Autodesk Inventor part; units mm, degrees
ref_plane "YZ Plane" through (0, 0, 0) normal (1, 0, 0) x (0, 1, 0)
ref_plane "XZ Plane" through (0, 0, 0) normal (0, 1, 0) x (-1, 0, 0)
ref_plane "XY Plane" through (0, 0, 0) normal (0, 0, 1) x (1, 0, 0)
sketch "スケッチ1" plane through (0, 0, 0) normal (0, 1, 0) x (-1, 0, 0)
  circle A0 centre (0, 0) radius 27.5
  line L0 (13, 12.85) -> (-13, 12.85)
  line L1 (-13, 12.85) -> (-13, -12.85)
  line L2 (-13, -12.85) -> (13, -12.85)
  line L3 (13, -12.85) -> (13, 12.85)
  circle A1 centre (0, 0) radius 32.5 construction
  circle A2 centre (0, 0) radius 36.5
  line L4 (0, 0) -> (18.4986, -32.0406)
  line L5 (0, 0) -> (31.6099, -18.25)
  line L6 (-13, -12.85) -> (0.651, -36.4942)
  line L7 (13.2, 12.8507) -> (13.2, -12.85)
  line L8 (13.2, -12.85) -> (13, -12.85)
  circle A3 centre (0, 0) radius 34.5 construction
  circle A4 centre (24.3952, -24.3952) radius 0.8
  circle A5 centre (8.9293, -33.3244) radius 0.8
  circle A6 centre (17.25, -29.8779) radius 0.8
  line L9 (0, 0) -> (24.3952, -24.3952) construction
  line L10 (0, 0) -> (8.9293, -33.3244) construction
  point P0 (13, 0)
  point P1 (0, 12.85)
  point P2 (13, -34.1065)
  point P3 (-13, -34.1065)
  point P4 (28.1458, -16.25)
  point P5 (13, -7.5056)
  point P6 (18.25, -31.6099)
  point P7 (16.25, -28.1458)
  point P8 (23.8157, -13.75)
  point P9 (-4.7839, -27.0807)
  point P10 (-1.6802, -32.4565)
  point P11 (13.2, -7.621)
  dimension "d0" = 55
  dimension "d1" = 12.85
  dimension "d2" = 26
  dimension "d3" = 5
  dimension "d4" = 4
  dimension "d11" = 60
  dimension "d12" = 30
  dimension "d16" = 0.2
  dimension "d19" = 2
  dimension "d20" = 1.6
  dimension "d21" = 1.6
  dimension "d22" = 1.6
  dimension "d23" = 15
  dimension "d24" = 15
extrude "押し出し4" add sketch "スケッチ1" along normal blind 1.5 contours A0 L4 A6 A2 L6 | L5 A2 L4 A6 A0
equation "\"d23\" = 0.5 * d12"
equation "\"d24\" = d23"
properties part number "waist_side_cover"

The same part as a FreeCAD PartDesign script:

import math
import FreeCAD as App
import Part
import Sketcher
from FreeCAD import Vector
Q = App.Units.Quantity

doc = App.newDocument("Part")
body = doc.addObject("PartDesign::Body", "Body")

sketch1 = body.newObject("Sketcher::SketchObject", "Sketch")
sketch1.AttachmentSupport = (doc.getObject("XZ_Plane"), [""])
sketch1.MapMode = "FlatFace"
sketch1.addGeometry([
    Part.LineSegment(Vector(4.8, -27.1, 0), Vector(-0.7, -36.5, 0)),
    Part.ArcOfCircle(Part.Circle(Vector(0, 0, 0), Vector(0, 0, 1), 36.5), math.radians(-150), math.radians(-91)),
    Part.LineSegment(Vector(-31.6, -18.2, 0), Vector(-23.8, -13.8, 0)),
    Part.ArcOfCircle(Part.Circle(Vector(0, 0, 0), Vector(0, 0, 1), 27.5), math.radians(-150), math.radians(-80)),
    Part.Circle(Vector(-17.2, -29.9, 0), Vector(0, 0, 1), 0.8),
    Part.Circle(Vector(-8.9, -33.3, 0), Vector(0, 0, 1), 0.8),
    Part.Circle(Vector(-24.4, -24.4, 0), Vector(0, 0, 1), 0.8),
], False)
sketch1.addConstraint([
    Sketcher.Constraint("Coincident", 0, 2, 1, 2),
    Sketcher.Constraint("Coincident", 1, 1, 2, 1),
    Sketcher.Constraint("Coincident", 2, 2, 3, 1),
    Sketcher.Constraint("Coincident", 3, 2, 0, 1),
    Sketcher.Constraint("Coincident", 1, 3, -1, 1),
    Sketcher.Constraint("Coincident", 3, 3, -1, 1),
    Sketcher.Constraint("Equal", 4, 5),
    Sketcher.Constraint("Equal", 5, 6),
    Sketcher.Constraint("Diameter", 4, Q("1.6 mm")),
    Sketcher.Constraint("Radius", 3, Q("27.5 mm")),
    Sketcher.Constraint("Angle", 2, Q("30 deg")),
    Sketcher.Constraint("Radius", 1, Q("36.5 mm")),
    Sketcher.Constraint("Angle", 0, Q("-120 deg")),
    Sketcher.Constraint("DistanceX", 4, 3, -1, 1, Q("17.25 mm")),
    Sketcher.Constraint("DistanceX", 1, 1, -1, 1, Q("31.61 mm")),
    Sketcher.Constraint("DistanceY", 4, 3, -1, 1, Q("29.878 mm")),
    Sketcher.Constraint("DistanceX", 0, 2, -1, 1, Q("0.651 mm")),
    Sketcher.Constraint("DistanceX", 6, 3, 5, 3, Q("15.466 mm")),
    Sketcher.Constraint("DistanceY", 0, 2, 6, 3, Q("12.099 mm")),
    Sketcher.Constraint("DistanceX", 5, 3, -1, 1, Q("8.9293 mm")),
    Sketcher.Constraint("DistanceY", 5, 3, -1, 1, Q("33.3244 mm")),
])
pad1 = body.newObject("PartDesign::Pad", "Pad")
pad1.Profile = sketch1
pad1.Length = 1.5
pad1.Reversed = True

doc.recompute()
